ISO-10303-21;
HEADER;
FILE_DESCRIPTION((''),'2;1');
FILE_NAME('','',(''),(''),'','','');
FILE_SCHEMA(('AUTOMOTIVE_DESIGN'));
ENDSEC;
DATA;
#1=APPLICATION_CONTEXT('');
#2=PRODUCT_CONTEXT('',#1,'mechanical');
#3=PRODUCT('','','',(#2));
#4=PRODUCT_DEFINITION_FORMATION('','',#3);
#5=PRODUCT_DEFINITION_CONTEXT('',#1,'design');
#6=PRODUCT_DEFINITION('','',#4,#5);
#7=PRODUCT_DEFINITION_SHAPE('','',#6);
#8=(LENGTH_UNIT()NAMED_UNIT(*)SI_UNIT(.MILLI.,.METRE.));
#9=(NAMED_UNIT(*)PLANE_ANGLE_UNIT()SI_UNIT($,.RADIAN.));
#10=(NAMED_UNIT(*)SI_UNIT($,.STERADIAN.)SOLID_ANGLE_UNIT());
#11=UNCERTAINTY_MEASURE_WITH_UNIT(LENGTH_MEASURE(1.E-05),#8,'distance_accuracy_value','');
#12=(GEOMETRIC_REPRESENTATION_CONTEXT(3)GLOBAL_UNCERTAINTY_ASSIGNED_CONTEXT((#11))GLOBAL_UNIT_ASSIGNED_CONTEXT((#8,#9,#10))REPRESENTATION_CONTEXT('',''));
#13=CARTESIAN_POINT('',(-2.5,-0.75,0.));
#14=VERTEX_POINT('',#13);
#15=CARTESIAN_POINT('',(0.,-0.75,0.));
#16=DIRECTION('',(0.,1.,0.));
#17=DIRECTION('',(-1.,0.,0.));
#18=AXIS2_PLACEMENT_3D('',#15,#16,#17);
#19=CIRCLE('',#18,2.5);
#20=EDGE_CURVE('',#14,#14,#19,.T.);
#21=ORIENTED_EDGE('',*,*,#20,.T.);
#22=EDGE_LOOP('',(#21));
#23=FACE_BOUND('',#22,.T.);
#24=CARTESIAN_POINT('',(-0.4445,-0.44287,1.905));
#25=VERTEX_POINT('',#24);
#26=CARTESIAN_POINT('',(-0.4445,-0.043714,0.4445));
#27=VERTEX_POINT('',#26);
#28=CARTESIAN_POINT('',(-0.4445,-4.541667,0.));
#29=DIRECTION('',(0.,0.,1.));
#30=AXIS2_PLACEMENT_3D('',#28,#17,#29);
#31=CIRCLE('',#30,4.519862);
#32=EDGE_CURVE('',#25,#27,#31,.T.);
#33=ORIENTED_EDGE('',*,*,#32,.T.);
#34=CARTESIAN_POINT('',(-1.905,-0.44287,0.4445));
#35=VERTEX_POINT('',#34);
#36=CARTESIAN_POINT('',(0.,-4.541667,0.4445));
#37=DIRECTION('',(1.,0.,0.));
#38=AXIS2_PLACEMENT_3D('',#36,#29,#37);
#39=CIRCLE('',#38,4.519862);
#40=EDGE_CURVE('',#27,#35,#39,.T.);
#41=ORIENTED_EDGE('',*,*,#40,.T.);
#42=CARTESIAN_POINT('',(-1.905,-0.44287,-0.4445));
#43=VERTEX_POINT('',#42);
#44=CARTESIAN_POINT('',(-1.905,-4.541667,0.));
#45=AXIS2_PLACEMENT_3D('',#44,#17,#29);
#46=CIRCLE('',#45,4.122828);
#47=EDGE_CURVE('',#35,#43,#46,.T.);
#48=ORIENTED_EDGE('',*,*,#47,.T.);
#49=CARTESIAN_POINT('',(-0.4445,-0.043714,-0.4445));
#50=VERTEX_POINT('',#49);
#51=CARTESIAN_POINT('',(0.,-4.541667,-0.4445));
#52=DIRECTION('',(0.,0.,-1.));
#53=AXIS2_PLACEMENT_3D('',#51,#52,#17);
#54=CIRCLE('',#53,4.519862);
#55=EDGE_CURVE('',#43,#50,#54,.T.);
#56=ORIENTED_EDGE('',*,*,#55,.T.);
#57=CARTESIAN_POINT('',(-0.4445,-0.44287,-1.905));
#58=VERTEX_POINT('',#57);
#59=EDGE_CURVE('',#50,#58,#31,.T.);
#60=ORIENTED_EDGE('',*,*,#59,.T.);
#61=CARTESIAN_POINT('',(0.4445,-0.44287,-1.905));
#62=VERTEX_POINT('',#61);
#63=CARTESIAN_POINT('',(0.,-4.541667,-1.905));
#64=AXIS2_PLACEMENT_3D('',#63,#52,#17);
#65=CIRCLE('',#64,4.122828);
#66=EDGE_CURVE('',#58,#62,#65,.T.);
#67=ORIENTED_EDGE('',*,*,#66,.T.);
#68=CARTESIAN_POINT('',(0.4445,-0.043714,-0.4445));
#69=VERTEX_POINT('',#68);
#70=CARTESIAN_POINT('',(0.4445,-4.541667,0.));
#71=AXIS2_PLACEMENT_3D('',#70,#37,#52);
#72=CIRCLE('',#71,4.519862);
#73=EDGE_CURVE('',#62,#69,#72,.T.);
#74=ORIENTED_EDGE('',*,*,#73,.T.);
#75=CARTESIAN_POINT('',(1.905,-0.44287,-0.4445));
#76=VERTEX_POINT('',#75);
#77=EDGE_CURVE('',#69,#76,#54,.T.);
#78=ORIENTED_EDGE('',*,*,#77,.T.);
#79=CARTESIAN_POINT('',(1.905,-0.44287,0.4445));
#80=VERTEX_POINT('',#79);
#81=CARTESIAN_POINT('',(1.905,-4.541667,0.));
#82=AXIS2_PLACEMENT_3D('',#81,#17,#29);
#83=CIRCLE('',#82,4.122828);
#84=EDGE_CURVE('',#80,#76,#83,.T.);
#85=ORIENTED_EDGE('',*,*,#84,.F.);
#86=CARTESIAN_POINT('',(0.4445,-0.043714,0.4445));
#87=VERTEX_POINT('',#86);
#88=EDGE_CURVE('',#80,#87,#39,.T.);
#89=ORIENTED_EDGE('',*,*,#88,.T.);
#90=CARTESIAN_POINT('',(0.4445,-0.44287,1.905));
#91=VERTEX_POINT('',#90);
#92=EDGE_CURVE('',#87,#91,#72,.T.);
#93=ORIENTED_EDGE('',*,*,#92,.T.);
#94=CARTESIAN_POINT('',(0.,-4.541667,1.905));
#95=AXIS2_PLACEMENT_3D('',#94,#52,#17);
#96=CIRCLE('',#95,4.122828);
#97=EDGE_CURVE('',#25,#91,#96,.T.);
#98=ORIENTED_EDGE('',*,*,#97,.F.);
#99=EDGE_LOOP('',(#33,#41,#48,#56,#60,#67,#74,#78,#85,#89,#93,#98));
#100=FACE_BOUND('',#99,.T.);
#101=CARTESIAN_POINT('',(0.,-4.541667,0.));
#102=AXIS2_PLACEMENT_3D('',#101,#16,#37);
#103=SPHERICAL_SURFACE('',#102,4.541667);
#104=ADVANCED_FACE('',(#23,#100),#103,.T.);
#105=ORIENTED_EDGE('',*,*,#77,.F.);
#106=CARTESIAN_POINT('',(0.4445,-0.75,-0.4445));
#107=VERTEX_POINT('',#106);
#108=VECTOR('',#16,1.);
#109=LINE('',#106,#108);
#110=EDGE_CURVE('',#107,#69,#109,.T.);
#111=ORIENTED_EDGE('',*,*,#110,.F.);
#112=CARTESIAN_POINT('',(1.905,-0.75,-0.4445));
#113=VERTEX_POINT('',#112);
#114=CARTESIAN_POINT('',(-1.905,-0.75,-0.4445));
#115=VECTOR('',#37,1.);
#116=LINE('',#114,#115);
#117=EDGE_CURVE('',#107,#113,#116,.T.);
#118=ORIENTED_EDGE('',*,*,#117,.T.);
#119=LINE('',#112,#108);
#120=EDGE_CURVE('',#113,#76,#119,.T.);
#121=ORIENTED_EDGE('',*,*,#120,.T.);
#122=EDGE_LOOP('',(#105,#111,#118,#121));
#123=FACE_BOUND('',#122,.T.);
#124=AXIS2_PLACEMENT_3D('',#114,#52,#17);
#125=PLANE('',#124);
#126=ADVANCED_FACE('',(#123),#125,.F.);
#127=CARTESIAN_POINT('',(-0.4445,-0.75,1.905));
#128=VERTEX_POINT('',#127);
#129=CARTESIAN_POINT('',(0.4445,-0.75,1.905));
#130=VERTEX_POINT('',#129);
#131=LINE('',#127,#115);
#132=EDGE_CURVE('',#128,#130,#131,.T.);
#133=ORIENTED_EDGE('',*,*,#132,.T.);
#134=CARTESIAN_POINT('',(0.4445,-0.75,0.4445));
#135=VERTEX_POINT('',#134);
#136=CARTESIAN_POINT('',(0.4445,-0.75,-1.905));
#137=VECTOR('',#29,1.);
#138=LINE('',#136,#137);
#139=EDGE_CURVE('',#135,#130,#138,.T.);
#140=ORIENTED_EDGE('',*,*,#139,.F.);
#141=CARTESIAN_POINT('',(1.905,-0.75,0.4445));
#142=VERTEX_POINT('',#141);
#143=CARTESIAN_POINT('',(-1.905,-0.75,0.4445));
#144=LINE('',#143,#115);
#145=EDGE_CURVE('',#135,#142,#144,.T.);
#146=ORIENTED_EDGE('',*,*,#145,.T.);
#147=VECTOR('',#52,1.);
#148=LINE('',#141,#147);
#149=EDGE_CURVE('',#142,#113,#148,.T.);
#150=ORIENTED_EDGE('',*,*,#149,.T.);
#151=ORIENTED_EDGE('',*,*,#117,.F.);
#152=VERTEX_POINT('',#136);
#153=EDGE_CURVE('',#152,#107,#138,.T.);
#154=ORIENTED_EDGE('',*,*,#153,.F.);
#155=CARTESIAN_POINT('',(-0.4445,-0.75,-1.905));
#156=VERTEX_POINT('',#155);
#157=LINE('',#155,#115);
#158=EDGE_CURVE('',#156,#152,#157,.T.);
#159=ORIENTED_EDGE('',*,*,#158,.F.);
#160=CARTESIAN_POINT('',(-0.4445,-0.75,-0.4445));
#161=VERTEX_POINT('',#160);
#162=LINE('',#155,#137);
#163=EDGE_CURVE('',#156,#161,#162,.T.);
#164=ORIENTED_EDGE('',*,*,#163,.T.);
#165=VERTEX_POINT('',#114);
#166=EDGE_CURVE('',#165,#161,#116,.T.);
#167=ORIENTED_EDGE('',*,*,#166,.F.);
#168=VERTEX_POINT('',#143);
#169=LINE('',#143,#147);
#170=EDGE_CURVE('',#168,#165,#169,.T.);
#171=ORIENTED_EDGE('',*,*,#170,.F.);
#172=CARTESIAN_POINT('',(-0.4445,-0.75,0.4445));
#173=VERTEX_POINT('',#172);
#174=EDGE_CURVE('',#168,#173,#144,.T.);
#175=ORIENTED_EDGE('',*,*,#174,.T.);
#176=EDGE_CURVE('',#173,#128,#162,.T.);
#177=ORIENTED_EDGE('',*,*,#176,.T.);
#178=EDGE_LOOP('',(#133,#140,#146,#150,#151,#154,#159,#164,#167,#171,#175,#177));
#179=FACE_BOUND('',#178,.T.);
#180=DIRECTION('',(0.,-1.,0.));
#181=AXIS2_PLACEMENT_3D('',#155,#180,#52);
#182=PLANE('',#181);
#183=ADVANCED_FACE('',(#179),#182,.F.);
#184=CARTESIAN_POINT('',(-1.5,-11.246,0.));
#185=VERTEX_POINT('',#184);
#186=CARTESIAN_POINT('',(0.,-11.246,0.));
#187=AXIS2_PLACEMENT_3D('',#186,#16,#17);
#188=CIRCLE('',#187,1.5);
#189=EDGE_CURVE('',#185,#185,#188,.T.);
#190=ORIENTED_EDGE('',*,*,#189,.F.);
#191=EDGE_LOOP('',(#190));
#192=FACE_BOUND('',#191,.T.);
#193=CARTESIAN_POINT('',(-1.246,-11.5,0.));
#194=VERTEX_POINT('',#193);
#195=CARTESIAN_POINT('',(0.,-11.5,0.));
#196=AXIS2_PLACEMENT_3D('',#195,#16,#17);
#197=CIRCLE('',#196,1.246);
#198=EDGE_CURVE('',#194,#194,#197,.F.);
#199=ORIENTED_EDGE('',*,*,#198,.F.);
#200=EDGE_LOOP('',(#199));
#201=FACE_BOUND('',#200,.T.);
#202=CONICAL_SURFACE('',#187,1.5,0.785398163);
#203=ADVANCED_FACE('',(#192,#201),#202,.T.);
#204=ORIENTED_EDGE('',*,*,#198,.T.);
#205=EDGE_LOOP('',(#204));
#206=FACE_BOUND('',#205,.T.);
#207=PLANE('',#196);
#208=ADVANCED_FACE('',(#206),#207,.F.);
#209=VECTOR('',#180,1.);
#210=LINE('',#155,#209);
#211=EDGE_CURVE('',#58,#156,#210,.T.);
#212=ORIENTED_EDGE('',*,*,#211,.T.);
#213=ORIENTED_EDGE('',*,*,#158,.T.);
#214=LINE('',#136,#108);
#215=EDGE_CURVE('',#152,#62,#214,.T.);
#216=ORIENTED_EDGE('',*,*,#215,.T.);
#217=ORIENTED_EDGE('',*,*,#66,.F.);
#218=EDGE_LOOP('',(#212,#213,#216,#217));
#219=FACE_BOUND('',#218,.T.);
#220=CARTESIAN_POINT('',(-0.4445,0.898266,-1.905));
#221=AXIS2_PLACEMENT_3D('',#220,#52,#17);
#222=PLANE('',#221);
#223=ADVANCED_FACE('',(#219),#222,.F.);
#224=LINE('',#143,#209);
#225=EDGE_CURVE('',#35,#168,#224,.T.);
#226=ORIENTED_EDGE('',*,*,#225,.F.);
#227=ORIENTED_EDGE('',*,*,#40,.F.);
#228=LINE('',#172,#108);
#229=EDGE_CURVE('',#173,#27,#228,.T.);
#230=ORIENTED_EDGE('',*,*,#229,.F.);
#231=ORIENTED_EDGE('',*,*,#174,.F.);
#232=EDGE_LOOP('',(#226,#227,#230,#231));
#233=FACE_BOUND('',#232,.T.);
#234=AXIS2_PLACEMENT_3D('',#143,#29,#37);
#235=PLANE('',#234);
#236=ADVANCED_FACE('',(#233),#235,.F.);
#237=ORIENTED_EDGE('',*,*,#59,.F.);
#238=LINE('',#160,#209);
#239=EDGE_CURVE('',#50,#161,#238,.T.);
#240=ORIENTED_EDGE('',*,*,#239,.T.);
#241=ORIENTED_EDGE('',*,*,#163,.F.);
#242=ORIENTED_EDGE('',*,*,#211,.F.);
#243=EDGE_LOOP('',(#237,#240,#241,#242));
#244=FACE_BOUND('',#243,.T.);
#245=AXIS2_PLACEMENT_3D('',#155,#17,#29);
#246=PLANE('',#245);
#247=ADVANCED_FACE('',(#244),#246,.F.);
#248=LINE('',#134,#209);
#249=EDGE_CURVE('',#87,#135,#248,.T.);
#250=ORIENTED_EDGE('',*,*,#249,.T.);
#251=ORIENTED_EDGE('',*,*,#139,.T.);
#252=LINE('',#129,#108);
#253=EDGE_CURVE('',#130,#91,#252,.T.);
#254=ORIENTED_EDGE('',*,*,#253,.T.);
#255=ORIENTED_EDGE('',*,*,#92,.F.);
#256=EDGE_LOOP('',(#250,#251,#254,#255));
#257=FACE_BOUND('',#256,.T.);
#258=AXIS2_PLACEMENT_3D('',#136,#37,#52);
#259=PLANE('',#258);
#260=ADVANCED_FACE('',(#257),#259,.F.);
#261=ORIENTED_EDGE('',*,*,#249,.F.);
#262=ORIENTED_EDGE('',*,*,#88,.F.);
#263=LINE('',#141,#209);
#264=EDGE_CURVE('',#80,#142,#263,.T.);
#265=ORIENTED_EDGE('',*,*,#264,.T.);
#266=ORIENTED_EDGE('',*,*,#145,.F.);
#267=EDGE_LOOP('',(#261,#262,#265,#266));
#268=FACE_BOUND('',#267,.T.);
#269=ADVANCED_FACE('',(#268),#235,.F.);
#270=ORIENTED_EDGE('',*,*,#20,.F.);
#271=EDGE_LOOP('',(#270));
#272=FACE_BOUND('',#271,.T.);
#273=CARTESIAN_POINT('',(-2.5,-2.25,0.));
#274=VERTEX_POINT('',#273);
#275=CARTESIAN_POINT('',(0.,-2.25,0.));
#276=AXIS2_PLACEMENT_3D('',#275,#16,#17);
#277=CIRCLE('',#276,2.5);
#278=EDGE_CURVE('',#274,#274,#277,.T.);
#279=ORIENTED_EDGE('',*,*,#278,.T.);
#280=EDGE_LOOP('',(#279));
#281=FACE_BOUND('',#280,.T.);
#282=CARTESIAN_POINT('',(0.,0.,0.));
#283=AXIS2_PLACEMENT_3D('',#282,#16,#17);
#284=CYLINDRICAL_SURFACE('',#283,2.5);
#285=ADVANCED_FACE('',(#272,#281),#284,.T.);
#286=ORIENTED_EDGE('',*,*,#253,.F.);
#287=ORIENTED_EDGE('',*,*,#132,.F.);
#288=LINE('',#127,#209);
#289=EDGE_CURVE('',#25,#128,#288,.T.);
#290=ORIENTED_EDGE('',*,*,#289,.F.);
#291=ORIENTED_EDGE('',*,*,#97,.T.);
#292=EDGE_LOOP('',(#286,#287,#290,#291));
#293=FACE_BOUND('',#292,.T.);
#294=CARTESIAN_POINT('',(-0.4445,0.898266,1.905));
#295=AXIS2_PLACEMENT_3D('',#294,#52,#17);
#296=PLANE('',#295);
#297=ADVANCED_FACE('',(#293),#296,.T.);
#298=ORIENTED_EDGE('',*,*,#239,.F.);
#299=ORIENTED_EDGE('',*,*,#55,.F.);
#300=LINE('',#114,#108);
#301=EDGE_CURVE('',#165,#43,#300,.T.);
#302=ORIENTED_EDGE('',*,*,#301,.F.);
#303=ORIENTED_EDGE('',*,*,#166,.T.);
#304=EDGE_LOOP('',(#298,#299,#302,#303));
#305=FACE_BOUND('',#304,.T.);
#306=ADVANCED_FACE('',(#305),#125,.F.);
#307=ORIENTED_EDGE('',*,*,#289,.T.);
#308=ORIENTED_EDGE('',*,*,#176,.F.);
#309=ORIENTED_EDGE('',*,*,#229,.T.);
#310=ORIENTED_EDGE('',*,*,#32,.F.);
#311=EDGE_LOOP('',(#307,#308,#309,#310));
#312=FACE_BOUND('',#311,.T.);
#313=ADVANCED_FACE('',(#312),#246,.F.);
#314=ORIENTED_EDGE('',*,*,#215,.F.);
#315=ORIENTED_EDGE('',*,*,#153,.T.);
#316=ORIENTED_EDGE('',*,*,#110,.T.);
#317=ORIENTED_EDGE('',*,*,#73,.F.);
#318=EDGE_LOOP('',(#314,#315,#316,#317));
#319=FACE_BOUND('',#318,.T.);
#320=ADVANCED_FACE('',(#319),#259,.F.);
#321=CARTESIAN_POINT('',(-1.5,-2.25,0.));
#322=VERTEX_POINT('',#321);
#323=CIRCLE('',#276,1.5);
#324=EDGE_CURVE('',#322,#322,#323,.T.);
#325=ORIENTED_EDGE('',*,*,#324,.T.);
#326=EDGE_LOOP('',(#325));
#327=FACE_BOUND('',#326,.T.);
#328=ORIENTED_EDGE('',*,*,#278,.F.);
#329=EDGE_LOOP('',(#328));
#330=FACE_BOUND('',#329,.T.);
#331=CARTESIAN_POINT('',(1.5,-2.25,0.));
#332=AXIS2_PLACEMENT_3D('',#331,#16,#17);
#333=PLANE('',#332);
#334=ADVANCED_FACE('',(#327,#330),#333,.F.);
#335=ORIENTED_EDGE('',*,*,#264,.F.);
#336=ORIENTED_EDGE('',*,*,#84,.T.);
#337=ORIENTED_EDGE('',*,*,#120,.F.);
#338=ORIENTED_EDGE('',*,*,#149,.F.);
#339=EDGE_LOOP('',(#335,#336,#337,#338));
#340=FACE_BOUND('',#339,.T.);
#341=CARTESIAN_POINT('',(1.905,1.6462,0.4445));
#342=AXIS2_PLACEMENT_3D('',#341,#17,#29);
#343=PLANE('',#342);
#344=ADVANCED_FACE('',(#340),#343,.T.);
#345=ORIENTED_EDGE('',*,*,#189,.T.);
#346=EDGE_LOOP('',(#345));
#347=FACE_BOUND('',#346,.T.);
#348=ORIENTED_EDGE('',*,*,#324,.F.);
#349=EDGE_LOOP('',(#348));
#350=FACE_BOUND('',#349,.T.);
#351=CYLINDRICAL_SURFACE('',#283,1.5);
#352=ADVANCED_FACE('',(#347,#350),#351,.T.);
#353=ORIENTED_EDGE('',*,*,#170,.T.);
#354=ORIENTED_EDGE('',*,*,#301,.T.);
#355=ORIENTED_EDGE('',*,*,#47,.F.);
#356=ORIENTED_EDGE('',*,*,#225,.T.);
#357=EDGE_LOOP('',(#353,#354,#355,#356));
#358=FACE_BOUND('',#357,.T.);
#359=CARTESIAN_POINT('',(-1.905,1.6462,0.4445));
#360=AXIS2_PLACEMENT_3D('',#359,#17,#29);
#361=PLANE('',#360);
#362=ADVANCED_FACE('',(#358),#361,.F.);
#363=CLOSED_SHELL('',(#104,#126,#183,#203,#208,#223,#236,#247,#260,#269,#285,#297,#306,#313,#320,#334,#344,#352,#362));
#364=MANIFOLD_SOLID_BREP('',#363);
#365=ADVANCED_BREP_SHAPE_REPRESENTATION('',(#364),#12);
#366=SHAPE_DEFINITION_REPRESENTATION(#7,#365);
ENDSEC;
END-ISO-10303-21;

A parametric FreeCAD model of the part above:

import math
import FreeCAD as App
import Part
import Sketcher

V = App.Vector
Q = App.Units.Quantity


def edges_at(feature, points):
    """Names of the edges that pass closest to the given points."""
    edges = feature.Shape.Edges
    near = lambda p: min(range(len(edges)), key=lambda i: edges[i].distToShape(Part.Vertex(*p))[0])
    return sorted({f"Edge{near(p) + 1}" for p in points})


def add_polygon(sketch, points):
    """Adds a closed chain of lines whose ends are joined by coincident constraints."""
    first, n = sketch.GeometryCount, len(points)
    for a, b in zip(points, points[1:] + points[:1]):
        sketch.addGeometry(Part.LineSegment(App.Vector(*a, 0), App.Vector(*b, 0)), False)
    for i in range(n):
        sketch.addConstraint(Sketcher.Constraint("Coincident", first + i, 2, first + (i + 1) % n, 1))

doc = App.newDocument("Part")
params = doc.addObject("Spreadsheet::Sheet", "Params")
for row, (alias, value) in enumerate([
    ("sketch1_width", "1 mm"),
    ("sketch1_width2", "1.5 mm"),
    ("sketch1_height", "11.5 mm"),
    ("sketch1_height2", "9.25 mm"),
    ("revolution_angle", "360 deg"),
    ("pocket1_length", "3.81 mm"),
    ("pocket2_length", "3.81 mm"),
    ("chamfer_size", "0.254 mm"),
], start=1):
    params.set(f"A{row}", alias)
    params.set(f"B{row}", "=" + value)
    params.setAlias(f"B{row}", alias)

body = doc.addObject("PartDesign::Body", "Body")

# Sketch on XY plane
sketch1 = body.newObject("Sketcher::SketchObject", "Sketch")
sketch1.AttachmentSupport = (doc.getObject("XY_Plane"), [""])
sketch1.MapMode = "FlatFace"
sketch1.addGeometry([
    Part.LineSegment(V(0, 0, 0), V(0, -11.5, 0)),  # 0
    Part.LineSegment(V(0, -11.5, 0), V(1.5, -11.5, 0)),  # 1
    Part.LineSegment(V(1.5, -11.5, 0), V(1.5, -2.2, 0)),  # 2
    Part.LineSegment(V(1.5, -2.2, 0), V(2.5, -2.2, 0)),  # 3
    Part.LineSegment(V(2.5, -2.2, 0), V(2.5, -0.8, 0)),  # 4
    Part.ArcOfCircle(Part.Circle(V(0, -4.5, 0), V(0, 0, 1), 4.5), math.radians(57), math.radians(90)),  # 5
], False)
sketch1.addConstraint([
    Sketcher.Constraint("Coincident", 0, 2, 1, 1),
    Sketcher.Constraint("Coincident", 1, 2, 2, 1),
    Sketcher.Constraint("Coincident", 2, 2, 3, 1),
    Sketcher.Constraint("Coincident", 3, 2, 4, 1),
    Sketcher.Constraint("Coincident", 4, 2, 5, 1),
    Sketcher.Constraint("Coincident", 5, 2, 0, 1),
    Sketcher.Constraint("Vertical", 0),
    Sketcher.Constraint("Horizontal", 1),
    Sketcher.Constraint("Vertical", 2),
    Sketcher.Constraint("Horizontal", 3),
    Sketcher.Constraint("Vertical", 4),
    Sketcher.Constraint("Coincident", 5, 2, -1, 1),
    Sketcher.Constraint("PointOnObject", 5, 3, -2),
    Sketcher.Constraint("Equal", 1, 4),
    Sketcher.Constraint("DistanceX", 3, 1, 3, 2, Q("1 mm")),
    Sketcher.Constraint("DistanceX", 1, 1, 1, 2, Q("1.5 mm")),
    Sketcher.Constraint("DistanceY", 0, 2, 0, 1, Q("11.5 mm")),
    Sketcher.Constraint("DistanceY", 2, 1, 2, 2, Q("9.25 mm")),
])
sketch1.setExpression("Constraints[14]", "Params.sketch1_width")
sketch1.setExpression("Constraints[15]", "Params.sketch1_width2")
sketch1.setExpression("Constraints[16]", "Params.sketch1_height")
sketch1.setExpression("Constraints[17]", "Params.sketch1_height2")
revolution = body.newObject("PartDesign::Revolution", "Revolution")
revolution.Profile = sketch1
revolution.ReferenceAxis = (sketch1, ["V_Axis"])
revolution.setExpression("Angle", "Params.revolution_angle")

# Sketch on XY plane
sketch2 = body.newObject("Sketcher::SketchObject", "Sketch001")
sketch2.AttachmentSupport = (doc.getObject("XY_Plane"), [""])
sketch2.MapMode = "FlatFace"
add_polygon(sketch2, [(-0.4, 0.9), (-0.4, -0.8), (0.4, -0.8), (0.4, 0.9)])  # lines 0-3
sketch2.addConstraint([
    Sketcher.Constraint("Vertical", 0),
    Sketcher.Constraint("Horizontal", 1),
    Sketcher.Constraint("Vertical", 2),
    Sketcher.Constraint("Horizontal", 3),
    Sketcher.Constraint("DistanceX", 1, 1, 1, 2, Q("0.889 mm")),
    Sketcher.Constraint("DistanceY", 0, 2, -1, 1, Q("0.75 mm")),
    Sketcher.Constraint("DistanceX", 0, 2, -1, 1, Q("0.4445 mm")),
    Sketcher.Constraint("DistanceY", 0, 2, 0, 1, Q("1.648266 mm")),
])
pocket1 = body.newObject("PartDesign::Pocket", "Pocket")
pocket1.Profile = sketch2
pocket1.setExpression("Length", "Params.pocket1_length")
pocket1.Midplane = True

# Sketch on YZ plane
sketch3 = body.newObject("Sketcher::SketchObject", "Sketch002")
sketch3.AttachmentSupport = (doc.getObject("YZ_Plane"), [""])
sketch3.MapMode = "FlatFace"
add_polygon(sketch3, [(1.6, 0.4), (-0.8, 0.4), (-0.8, -0.4), (1.6, -0.4)])  # lines 0-3
sketch3.addConstraint([
    Sketcher.Constraint("Horizontal", 0),
    Sketcher.Constraint("Vertical", 1),
    Sketcher.Constraint("Horizontal", 2),
    Sketcher.Constraint("Vertical", 3),
    Sketcher.Constraint("DistanceY", 1, 2, 1, 1, Q("0.889 mm")),
    Sketcher.Constraint("DistanceX", 0, 2, -1, 1, Q("0.75 mm")),
    Sketcher.Constraint("DistanceX", 0, 2, 0, 1, Q("2.3962 mm")),
    Sketcher.Constraint("DistanceY", -1, 1, 0, 2, Q("0.4445 mm")),
])
pocket2 = body.newObject("PartDesign::Pocket", "Pocket001")
pocket2.Profile = sketch3
pocket2.setExpression("Length", "Params.pocket2_length")
pocket2.Midplane = True
doc.recompute()

chamfer = body.newObject("PartDesign::Chamfer", "Chamfer")
chamfer.Base = (pocket2, edges_at(pocket2, [(-1.5, -11.5, 0)]))
chamfer.setExpression("Size", "Params.chamfer_size")

doc.recompute()
